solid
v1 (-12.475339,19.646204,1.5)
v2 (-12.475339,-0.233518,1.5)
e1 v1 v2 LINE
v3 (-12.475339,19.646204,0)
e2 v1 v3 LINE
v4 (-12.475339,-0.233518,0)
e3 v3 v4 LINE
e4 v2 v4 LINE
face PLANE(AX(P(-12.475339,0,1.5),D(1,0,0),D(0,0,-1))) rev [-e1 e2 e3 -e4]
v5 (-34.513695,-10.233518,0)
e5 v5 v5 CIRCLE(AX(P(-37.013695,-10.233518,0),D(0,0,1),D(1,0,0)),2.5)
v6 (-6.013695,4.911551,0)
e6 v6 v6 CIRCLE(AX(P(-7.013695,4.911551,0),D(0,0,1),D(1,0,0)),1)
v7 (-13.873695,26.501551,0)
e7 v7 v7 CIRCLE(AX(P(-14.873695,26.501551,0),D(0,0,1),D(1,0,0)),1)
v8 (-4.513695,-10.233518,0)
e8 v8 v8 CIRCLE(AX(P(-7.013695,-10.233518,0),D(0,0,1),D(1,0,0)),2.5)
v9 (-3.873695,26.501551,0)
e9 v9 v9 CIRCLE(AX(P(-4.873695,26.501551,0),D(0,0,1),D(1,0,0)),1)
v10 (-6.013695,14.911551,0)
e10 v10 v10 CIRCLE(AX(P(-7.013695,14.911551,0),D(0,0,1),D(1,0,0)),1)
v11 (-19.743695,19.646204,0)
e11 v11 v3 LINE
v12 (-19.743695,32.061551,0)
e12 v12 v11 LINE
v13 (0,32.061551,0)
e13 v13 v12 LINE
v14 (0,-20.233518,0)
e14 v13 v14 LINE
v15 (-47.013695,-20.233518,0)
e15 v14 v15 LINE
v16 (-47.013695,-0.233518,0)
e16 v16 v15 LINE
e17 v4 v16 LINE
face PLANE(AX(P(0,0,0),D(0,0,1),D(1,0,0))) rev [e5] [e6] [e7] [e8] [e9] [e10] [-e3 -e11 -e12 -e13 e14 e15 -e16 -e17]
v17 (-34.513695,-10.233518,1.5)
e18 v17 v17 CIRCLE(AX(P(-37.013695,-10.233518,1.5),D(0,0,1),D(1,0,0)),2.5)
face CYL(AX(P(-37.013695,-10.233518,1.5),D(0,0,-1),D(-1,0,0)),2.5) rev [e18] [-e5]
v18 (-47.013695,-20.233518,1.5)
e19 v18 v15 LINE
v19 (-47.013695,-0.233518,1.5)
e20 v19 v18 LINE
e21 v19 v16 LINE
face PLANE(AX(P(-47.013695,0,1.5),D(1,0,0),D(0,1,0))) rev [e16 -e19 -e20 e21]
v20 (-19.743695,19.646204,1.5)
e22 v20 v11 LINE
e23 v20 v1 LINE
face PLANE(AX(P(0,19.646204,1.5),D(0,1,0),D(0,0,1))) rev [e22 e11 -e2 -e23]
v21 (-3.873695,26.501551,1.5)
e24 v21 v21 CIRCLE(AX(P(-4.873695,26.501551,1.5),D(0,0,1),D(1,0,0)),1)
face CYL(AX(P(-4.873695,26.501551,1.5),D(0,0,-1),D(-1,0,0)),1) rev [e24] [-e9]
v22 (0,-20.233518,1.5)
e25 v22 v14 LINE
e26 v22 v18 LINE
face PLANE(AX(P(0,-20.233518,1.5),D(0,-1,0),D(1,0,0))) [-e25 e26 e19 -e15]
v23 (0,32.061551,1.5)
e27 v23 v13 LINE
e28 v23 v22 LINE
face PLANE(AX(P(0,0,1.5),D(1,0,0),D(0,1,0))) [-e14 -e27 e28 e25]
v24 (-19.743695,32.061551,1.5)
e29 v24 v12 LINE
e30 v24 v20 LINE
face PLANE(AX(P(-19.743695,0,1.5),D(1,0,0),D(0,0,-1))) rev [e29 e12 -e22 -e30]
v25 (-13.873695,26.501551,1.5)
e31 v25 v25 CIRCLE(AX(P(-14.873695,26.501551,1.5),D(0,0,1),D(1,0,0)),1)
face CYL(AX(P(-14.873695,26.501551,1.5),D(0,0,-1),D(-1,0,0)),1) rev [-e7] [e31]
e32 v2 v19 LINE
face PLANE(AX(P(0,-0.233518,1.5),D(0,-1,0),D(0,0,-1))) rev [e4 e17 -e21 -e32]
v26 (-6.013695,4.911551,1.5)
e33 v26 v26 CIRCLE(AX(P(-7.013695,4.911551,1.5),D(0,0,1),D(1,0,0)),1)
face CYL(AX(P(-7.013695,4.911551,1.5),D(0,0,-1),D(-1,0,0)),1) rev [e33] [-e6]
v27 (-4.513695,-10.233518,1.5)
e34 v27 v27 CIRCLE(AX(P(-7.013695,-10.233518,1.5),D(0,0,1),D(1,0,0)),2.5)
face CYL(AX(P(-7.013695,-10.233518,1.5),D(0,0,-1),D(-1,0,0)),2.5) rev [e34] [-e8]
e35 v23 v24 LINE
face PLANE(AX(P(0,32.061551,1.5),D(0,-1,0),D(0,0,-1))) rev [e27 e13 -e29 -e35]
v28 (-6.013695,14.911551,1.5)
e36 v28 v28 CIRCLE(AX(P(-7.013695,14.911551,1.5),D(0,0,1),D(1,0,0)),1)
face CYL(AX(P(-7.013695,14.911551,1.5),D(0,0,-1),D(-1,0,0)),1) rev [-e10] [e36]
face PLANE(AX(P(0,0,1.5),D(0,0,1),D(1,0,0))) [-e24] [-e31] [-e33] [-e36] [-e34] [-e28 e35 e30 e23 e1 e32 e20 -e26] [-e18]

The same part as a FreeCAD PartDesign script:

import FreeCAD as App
import Part
import Sketcher

V = App.Vector

doc = App.newDocument("Part")
params = doc.addObject("Spreadsheet::Sheet", "Params")
for row, (alias, value) in enumerate([
    ("sketch1_diameter", "5 mm"),
    ("sketch1_diameter2", "2 mm"),
    ("sketch1_height", "20 mm"),
    ("pad1_length", "1.5 mm"),
], start=1):
    params.set(f"A{row}", alias)
    params.set(f"B{row}", "=" + value)
    params.setAlias(f"B{row}", alias)

body = doc.addObject("PartDesign::Body", "Body")

# Sketch on XY plane
sketch1 = body.newObject("Sketcher::SketchObject", "Sketch")
sketch1.AttachmentSupport = (doc.getObject("XY_Plane"), [""])
sketch1.MapMode = "FlatFace"
sketch1.addGeometry(Part.LineSegment(V(-19.7, 19.6, 0), V(-12.5, 19.6, 0)), False)
sketch1.addGeometry(Part.LineSegment(V(-12.5, 19.6, 0), V(-12.5, -0.2, 0)), False)
sketch1.addGeometry(Part.LineSegment(V(-12.5, -0.2, 0), V(-47, -0.2, 0)), False)
sketch1.addGeometry(Part.LineSegment(V(-47, -0.2, 0), V(-47, -20.2, 0)), False)
sketch1.addGeometry(Part.LineSegment(V(-47, -20.2, 0), V(0, -20.2, 0)), False)
sketch1.addGeometry(Part.LineSegment(V(0, -20.2, 0), V(0, 32.1, 0)), False)
sketch1.addGeometry(Part.LineSegment(V(0, 32.1, 0), V(-19.7, 32.1, 0)), False)
sketch1.addGeometry(Part.LineSegment(V(-19.7, 32.1, 0), V(-19.7, 19.6, 0)), False)
sketch1.addGeometry(Part.Circle(V(-37, -10.2, 0), V(0, 0, 1), 2.5), False)
sketch1.addGeometry(Part.Circle(V(-7, -10.2, 0), V(0, 0, 1), 2.5), False)
sketch1.addGeometry(Part.Circle(V(-7, 4.9, 0), V(0, 0, 1), 1), False)
sketch1.addGeometry(Part.Circle(V(-7, 14.9, 0), V(0, 0, 1), 1), False)
sketch1.addGeometry(Part.Circle(V(-14.9, 26.5, 0), V(0, 0, 1), 1), False)
sketch1.addGeometry(Part.Circle(V(-4.9, 26.5, 0), V(0, 0, 1), 1), False)
sketch1.addConstraint(Sketcher.Constraint("Coincident", 0, 2, 1, 1))
sketch1.addConstraint(Sketcher.Constraint("Coincident", 1, 2, 2, 1))
sketch1.addConstraint(Sketcher.Constraint("Coincident", 2, 2, 3, 1))
sketch1.addConstraint(Sketcher.Constraint("Coincident", 3, 2, 4, 1))
sketch1.addConstraint(Sketcher.Constraint("Coincident", 4, 2, 5, 1))
sketch1.addConstraint(Sketcher.Constraint("Coincident", 5, 2, 6, 1))
sketch1.addConstraint(Sketcher.Constraint("Coincident", 6, 2, 7, 1))
sketch1.addConstraint(Sketcher.Constraint("Coincident", 7, 2, 0, 1))
sketch1.addConstraint(Sketcher.Constraint("Horizontal", 0))
sketch1.addConstraint(Sketcher.Constraint("Vertical", 1))
sketch1.addConstraint(Sketcher.Constraint("Horizontal", 2))
sketch1.addConstraint(Sketcher.Constraint("Vertical", 3))
sketch1.addConstraint(Sketcher.Constraint("Horizontal", 4))
sketch1.addConstraint(Sketcher.Constraint("Vertical", 5))
sketch1.addConstraint(Sketcher.Constraint("Horizontal", 6))
sketch1.addConstraint(Sketcher.Constraint("Vertical", 7))
sketch1.addConstraint(Sketcher.Constraint("Equal", 8, 9))
sketch1.addConstraint(Sketcher.Constraint("Equal", 10, 11))
sketch1.addConstraint(Sketcher.Constraint("Equal", 11, 12))
sketch1.addConstraint(Sketcher.Constraint("Equal", 12, 13))
sketch1.addConstraint(Sketcher.Constraint("PointOnObject", 4, 2, -2))
sketch1.addConstraint(Sketcher.Constraint("Horizontal", 8, 3, 9, 3))
sketch1.addConstraint(Sketcher.Constraint("Horizontal", 12, 3, 13, 3))
sketch1.addConstraint(Sketcher.Constraint("Vertical", 9, 3, 10, 3))
sketch1.addConstraint(Sketcher.Constraint("Vertical", 10, 3, 11, 3))
sketch1.addConstraint(Sketcher.Constraint("Diameter", 8, 5.0))
sketch1.addConstraint(Sketcher.Constraint("Diameter", 10, 2.0))
sketch1.addConstraint(Sketcher.Constraint("DistanceY", 3, 2, 3, 1, 20.0))
sketch1.addConstraint(Sketcher.Constraint("DistanceX", 8, 3, 9, 3, 30.0))
sketch1.addConstraint(Sketcher.Constraint("DistanceY", 10, 3, 11, 3, 10.0))
sketch1.addConstraint(Sketcher.Constraint("DistanceX", 12, 3, 13, 3, 10.0))
sketch1.addConstraint(Sketcher.Constraint("DistanceY", 9, 3, 1, 2, 10.0))
sketch1.addConstraint(Sketcher.Constraint("DistanceX", 2, 2, 8, 3, 10.0))
sketch1.addConstraint(Sketcher.Constraint("DistanceX", 12, 3, 11, 3, 7.86))
sketch1.addConstraint(Sketcher.Constraint("DistanceY", 11, 3, 12, 3, 11.59))
sketch1.addConstraint(Sketcher.Constraint("DistanceY", 13, 3, 5, 2, 5.56))
sketch1.addConstraint(Sketcher.Constraint("DistanceX", 6, 2, 12, 3, 4.87))
sketch1.addConstraint(Sketcher.Constraint("DistanceY", 1, 2, 1, 1, 19.879722))
sketch1.addConstraint(Sketcher.Constraint("DistanceY", 5, 1, 5, 2, 52.295069))
sketch1.addConstraint(Sketcher.Constraint("DistanceX", 0, 1, 0, 2, 7.268355))
sketch1.addConstraint(Sketcher.Constraint("DistanceX", 4, 1, 4, 2, 47.013695))
sketch1.addConstraint(Sketcher.Constraint("DistanceY", -1, 1, 10, 3, 4.911551))
sketch1.setExpression("Constraints[25]", "Params.sketch1_diameter")
sketch1.setExpression("Constraints[26]", "Params.sketch1_diameter2")
sketch1.setExpression("Constraints[27]", "Params.sketch1_height")
pad1 = body.newObject("PartDesign::Pad", "Pad")
pad1.Profile = sketch1
pad1.setExpression("Length", "Params.pad1_length")

doc.recompute()
